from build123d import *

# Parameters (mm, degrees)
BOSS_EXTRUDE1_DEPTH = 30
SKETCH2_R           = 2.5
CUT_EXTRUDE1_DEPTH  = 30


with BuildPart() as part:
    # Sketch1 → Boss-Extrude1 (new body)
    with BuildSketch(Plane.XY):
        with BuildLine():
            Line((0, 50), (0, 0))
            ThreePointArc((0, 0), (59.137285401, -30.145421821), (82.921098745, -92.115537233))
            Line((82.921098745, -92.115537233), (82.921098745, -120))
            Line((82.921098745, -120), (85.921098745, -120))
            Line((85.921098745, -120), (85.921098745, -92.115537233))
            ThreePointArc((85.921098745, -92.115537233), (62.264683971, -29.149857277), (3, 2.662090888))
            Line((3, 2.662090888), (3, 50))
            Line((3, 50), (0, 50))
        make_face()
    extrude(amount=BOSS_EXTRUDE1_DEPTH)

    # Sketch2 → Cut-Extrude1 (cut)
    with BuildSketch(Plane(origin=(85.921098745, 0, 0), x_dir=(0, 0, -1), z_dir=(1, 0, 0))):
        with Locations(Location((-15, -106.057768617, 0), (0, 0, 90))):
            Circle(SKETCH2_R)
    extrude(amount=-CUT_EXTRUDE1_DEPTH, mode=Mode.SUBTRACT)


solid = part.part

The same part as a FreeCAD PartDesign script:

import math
import FreeCAD as App
import Part
import Sketcher
from FreeCAD import Vector
Q = App.Units.Quantity

doc = App.newDocument("Part")
body = doc.addObject("PartDesign::Body", "Body")

# Sketch on XY plane
sketch1 = body.newObject("Sketcher::SketchObject", "Sketch")
sketch1.AttachmentSupport = (doc.getObject("XY_Plane"), [""])
sketch1.MapMode = "FlatFace"
sketch1.addGeometry(Part.LineSegment(Vector(0, 50, 0), Vector(0, 0, 0)), False)
sketch1.addGeometry(Part.ArcOfCircle(Part.Circle(Vector(-9.7, -92.1, 0), Vector(0, 0, 1), 92.6), math.radians(0), math.radians(84)), False)
sketch1.addGeometry(Part.LineSegment(Vector(82.9, -92.1, 0), Vector(82.9, -120, 0)), False)
sketch1.addGeometry(Part.LineSegment(Vector(82.9, -120, 0), Vector(85.9, -120, 0)), False)
sketch1.addGeometry(Part.LineSegment(Vector(85.9, -120, 0), Vector(85.9, -92.1, 0)), False)
sketch1.addGeometry(Part.ArcOfCircle(Part.Circle(Vector(-9.7, -92.1, 0), Vector(0, 0, 1), 95.6), math.radians(0), math.radians(82)), False)
sketch1.addGeometry(Part.LineSegment(Vector(3, 2.7, 0), Vector(3, 50, 0)), False)
sketch1.addGeometry(Part.LineSegment(Vector(3, 50, 0), Vector(0, 50, 0)), False)
sketch1.addConstraint(Sketcher.Constraint("Coincident", 0, 2, 1, 2))
sketch1.addConstraint(Sketcher.Constraint("Tangent", 1, 1, 2, 1))
sketch1.addConstraint(Sketcher.Constraint("Coincident", 2, 2, 3, 1))
sketch1.addConstraint(Sketcher.Constraint("Coincident", 3, 2, 4, 1))
sketch1.addConstraint(Sketcher.Constraint("Tangent", 4, 2, 5, 1))
sketch1.addConstraint(Sketcher.Constraint("Coincident", 5, 2, 6, 1))
sketch1.addConstraint(Sketcher.Constraint("Coincident", 6, 2, 7, 1))
sketch1.addConstraint(Sketcher.Constraint("Coincident", 7, 2, 0, 1))
sketch1.addConstraint(Sketcher.Constraint("Vertical", 0))
sketch1.addConstraint(Sketcher.Constraint("Vertical", 2))
sketch1.addConstraint(Sketcher.Constraint("Horizontal", 3))
sketch1.addConstraint(Sketcher.Constraint("Vertical", 4))
sketch1.addConstraint(Sketcher.Constraint("Vertical", 6))
sketch1.addConstraint(Sketcher.Constraint("Horizontal", 7))
sketch1.addConstraint(Sketcher.Constraint("Coincident", 0, 2, -1, 1))
sketch1.addConstraint(Sketcher.Constraint("Coincident", 5, 3, 1, 3))
sketch1.addConstraint(Sketcher.Constraint("Equal", 3, 7))
sketch1.addConstraint(Sketcher.Constraint("DistanceX", 3, 1, 3, 2, Q("3 mm")))
sketch1.addConstraint(Sketcher.Constraint("DistanceY", 0, 2, 0, 1, Q("50 mm")))
sketch1.addConstraint(Sketcher.Constraint("DistanceY", 2, 2, -1, 1, Q("120 mm")))
sketch1.addConstraint(Sketcher.Constraint("Radius", 1, Q("92.625285 mm")))
sketch1.addConstraint(Sketcher.Constraint("DistanceY", 6, 1, 6, 2, Q("47.337909 mm")))
pad1 = body.newObject("PartDesign::Pad", "Pad")
pad1.Profile = sketch1
pad1.Length = 30

# Sketch on YZ plane
sketch2 = body.newObject("Sketcher::SketchObject", "Sketch001")
sketch2.AttachmentSupport = (doc.getObject("YZ_Plane"), [""])
sketch2.MapMode = "FlatFace"
sketch2.AttachmentOffset = App.Placement(Vector(0, 0, 85.921099), App.Rotation())
sketch2.addGeometry(Part.Circle(Vector(-106.1, 15, 0), Vector(0, 0, 1), 2.5), False)
sketch2.addConstraint(Sketcher.Constraint("Diameter", 0, Q("5 mm")))
sketch2.addConstraint(Sketcher.Constraint("DistanceY", -1, 1, 0, 3, Q("15 mm")))
sketch2.addConstraint(Sketcher.Constraint("DistanceX", 0, 3, -1, 1, Q("106.057769 mm")))
pocket1 = body.newObject("PartDesign::Pocket", "Pocket")
pocket1.Profile = sketch2
pocket1.Length = 30

doc.recompute()
